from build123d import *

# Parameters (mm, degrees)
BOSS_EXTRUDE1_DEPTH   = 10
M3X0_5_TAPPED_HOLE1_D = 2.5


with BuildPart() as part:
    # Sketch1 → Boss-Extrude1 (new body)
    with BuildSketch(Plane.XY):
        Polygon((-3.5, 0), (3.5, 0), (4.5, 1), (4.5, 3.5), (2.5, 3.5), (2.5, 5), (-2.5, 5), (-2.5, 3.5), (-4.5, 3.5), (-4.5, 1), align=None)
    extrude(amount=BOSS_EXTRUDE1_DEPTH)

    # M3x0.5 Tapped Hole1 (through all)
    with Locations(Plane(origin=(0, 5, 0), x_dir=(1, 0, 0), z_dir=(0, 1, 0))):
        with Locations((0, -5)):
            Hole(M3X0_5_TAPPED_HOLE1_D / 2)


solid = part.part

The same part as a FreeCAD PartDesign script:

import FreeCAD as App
import Part
import Sketcher
Q = App.Units.Quantity


def add_polygon(sketch, points):
    """Adds a closed chain of lines whose ends are joined by coincident constraints."""
    first, n = sketch.GeometryCount, len(points)
    for a, b in zip(points, points[1:] + points[:1]):
        sketch.addGeometry(Part.LineSegment(App.Vector(*a, 0), App.Vector(*b, 0)), False)
    for i in range(n):
        sketch.addConstraint(Sketcher.Constraint("Coincident", first + i, 2, first + (i + 1) % n, 1))

doc = App.newDocument("Part")
body = doc.addObject("PartDesign::Body", "Body")

# Sketch on XY plane
sketch1 = doc.addObject("Sketcher::SketchObject", "Sketch")
body.addObject(sketch1)
sketch1.AttachmentSupport = (doc.XY_Plane, [""])
sketch1.MapMode = "FlatFace"
add_polygon(sketch1, [(-3.5, 0), (3.5, 0), (4.5, 1), (4.5, 3.5), (2.5, 3.5), (2.5, 5), (-2.5, 5), (-2.5, 3.5), (-4.5, 3.5), (-4.5, 1)])  # lines 0-9
sketch1.addConstraint(Sketcher.Constraint("Horizontal", 0))
sketch1.addConstraint(Sketcher.Constraint("Vertical", 2))
sketch1.addConstraint(Sketcher.Constraint("Horizontal", 3))
sketch1.addConstraint(Sketcher.Constraint("Vertical", 4))
sketch1.addConstraint(Sketcher.Constraint("Horizontal", 5))
sketch1.addConstraint(Sketcher.Constraint("Vertical", 6))
sketch1.addConstraint(Sketcher.Constraint("Horizontal", 7))
sketch1.addConstraint(Sketcher.Constraint("Vertical", 8))
sketch1.addConstraint(Sketcher.Constraint("Symmetric", 0, 2, 9, 2, -1, 1))
sketch1.addConstraint(Sketcher.Constraint("Symmetric", 3, 2, 6, 2, -2))
sketch1.addConstraint(Sketcher.Constraint("Symmetric", 1, 2, 8, 2, -2))
sketch1.addConstraint(Sketcher.Constraint("Perpendicular", 1, 9))
sketch1.addConstraint(Sketcher.Constraint("DistanceX", 0, 1, 0, 2, Q("7 mm")))
sketch1.addConstraint(Sketcher.Constraint("DistanceX", 3, 2, 3, 1, Q("2 mm")))
sketch1.addConstraint(Sketcher.Constraint("DistanceX", 5, 2, 5, 1, Q("5 mm")))
sketch1.addConstraint(Sketcher.Constraint("DistanceY", 2, 1, 2, 2, Q("2.5 mm")))
sketch1.addConstraint(Sketcher.Constraint("DistanceY", 4, 1, 4, 2, Q("1.5 mm")))
pad1 = doc.addObject("PartDesign::Pad", "Pad")
body.addObject(pad1)
pad1.Profile = sketch1
pad1.Length = 10

# Sketch on XZ plane
sketch2 = doc.addObject("Sketcher::SketchObject", "Sketch001")
body.addObject(sketch2)
sketch2.AttachmentSupport = (doc.XZ_Plane, [""])
sketch2.MapMode = "FlatFace"
sketch2.AttachmentOffset = App.Placement(App.Vector(0, 0, -5), App.Rotation())
sketch2.addGeometry(Part.Circle(App.Vector(0, 5, 0), App.Vector(0, 0, 1), 1.2), False)
sketch2.addConstraint(Sketcher.Constraint("PointOnObject", 0, 3, -2))
sketch2.addConstraint(Sketcher.Constraint("Diameter", 0, Q("2.5 mm")))
sketch2.addConstraint(Sketcher.Constraint("DistanceY", -1, 1, 0, 3, Q("5 mm")))
doc.recompute()
hole = doc.addObject("PartDesign::Hole", "Hole")
body.addObject(hole)
hole.Profile = sketch2
hole.ThreadType = "None"
hole.Diameter = 2.5
hole.DepthType = "ThroughAll"
hole.Reversed = True

doc.recompute()
